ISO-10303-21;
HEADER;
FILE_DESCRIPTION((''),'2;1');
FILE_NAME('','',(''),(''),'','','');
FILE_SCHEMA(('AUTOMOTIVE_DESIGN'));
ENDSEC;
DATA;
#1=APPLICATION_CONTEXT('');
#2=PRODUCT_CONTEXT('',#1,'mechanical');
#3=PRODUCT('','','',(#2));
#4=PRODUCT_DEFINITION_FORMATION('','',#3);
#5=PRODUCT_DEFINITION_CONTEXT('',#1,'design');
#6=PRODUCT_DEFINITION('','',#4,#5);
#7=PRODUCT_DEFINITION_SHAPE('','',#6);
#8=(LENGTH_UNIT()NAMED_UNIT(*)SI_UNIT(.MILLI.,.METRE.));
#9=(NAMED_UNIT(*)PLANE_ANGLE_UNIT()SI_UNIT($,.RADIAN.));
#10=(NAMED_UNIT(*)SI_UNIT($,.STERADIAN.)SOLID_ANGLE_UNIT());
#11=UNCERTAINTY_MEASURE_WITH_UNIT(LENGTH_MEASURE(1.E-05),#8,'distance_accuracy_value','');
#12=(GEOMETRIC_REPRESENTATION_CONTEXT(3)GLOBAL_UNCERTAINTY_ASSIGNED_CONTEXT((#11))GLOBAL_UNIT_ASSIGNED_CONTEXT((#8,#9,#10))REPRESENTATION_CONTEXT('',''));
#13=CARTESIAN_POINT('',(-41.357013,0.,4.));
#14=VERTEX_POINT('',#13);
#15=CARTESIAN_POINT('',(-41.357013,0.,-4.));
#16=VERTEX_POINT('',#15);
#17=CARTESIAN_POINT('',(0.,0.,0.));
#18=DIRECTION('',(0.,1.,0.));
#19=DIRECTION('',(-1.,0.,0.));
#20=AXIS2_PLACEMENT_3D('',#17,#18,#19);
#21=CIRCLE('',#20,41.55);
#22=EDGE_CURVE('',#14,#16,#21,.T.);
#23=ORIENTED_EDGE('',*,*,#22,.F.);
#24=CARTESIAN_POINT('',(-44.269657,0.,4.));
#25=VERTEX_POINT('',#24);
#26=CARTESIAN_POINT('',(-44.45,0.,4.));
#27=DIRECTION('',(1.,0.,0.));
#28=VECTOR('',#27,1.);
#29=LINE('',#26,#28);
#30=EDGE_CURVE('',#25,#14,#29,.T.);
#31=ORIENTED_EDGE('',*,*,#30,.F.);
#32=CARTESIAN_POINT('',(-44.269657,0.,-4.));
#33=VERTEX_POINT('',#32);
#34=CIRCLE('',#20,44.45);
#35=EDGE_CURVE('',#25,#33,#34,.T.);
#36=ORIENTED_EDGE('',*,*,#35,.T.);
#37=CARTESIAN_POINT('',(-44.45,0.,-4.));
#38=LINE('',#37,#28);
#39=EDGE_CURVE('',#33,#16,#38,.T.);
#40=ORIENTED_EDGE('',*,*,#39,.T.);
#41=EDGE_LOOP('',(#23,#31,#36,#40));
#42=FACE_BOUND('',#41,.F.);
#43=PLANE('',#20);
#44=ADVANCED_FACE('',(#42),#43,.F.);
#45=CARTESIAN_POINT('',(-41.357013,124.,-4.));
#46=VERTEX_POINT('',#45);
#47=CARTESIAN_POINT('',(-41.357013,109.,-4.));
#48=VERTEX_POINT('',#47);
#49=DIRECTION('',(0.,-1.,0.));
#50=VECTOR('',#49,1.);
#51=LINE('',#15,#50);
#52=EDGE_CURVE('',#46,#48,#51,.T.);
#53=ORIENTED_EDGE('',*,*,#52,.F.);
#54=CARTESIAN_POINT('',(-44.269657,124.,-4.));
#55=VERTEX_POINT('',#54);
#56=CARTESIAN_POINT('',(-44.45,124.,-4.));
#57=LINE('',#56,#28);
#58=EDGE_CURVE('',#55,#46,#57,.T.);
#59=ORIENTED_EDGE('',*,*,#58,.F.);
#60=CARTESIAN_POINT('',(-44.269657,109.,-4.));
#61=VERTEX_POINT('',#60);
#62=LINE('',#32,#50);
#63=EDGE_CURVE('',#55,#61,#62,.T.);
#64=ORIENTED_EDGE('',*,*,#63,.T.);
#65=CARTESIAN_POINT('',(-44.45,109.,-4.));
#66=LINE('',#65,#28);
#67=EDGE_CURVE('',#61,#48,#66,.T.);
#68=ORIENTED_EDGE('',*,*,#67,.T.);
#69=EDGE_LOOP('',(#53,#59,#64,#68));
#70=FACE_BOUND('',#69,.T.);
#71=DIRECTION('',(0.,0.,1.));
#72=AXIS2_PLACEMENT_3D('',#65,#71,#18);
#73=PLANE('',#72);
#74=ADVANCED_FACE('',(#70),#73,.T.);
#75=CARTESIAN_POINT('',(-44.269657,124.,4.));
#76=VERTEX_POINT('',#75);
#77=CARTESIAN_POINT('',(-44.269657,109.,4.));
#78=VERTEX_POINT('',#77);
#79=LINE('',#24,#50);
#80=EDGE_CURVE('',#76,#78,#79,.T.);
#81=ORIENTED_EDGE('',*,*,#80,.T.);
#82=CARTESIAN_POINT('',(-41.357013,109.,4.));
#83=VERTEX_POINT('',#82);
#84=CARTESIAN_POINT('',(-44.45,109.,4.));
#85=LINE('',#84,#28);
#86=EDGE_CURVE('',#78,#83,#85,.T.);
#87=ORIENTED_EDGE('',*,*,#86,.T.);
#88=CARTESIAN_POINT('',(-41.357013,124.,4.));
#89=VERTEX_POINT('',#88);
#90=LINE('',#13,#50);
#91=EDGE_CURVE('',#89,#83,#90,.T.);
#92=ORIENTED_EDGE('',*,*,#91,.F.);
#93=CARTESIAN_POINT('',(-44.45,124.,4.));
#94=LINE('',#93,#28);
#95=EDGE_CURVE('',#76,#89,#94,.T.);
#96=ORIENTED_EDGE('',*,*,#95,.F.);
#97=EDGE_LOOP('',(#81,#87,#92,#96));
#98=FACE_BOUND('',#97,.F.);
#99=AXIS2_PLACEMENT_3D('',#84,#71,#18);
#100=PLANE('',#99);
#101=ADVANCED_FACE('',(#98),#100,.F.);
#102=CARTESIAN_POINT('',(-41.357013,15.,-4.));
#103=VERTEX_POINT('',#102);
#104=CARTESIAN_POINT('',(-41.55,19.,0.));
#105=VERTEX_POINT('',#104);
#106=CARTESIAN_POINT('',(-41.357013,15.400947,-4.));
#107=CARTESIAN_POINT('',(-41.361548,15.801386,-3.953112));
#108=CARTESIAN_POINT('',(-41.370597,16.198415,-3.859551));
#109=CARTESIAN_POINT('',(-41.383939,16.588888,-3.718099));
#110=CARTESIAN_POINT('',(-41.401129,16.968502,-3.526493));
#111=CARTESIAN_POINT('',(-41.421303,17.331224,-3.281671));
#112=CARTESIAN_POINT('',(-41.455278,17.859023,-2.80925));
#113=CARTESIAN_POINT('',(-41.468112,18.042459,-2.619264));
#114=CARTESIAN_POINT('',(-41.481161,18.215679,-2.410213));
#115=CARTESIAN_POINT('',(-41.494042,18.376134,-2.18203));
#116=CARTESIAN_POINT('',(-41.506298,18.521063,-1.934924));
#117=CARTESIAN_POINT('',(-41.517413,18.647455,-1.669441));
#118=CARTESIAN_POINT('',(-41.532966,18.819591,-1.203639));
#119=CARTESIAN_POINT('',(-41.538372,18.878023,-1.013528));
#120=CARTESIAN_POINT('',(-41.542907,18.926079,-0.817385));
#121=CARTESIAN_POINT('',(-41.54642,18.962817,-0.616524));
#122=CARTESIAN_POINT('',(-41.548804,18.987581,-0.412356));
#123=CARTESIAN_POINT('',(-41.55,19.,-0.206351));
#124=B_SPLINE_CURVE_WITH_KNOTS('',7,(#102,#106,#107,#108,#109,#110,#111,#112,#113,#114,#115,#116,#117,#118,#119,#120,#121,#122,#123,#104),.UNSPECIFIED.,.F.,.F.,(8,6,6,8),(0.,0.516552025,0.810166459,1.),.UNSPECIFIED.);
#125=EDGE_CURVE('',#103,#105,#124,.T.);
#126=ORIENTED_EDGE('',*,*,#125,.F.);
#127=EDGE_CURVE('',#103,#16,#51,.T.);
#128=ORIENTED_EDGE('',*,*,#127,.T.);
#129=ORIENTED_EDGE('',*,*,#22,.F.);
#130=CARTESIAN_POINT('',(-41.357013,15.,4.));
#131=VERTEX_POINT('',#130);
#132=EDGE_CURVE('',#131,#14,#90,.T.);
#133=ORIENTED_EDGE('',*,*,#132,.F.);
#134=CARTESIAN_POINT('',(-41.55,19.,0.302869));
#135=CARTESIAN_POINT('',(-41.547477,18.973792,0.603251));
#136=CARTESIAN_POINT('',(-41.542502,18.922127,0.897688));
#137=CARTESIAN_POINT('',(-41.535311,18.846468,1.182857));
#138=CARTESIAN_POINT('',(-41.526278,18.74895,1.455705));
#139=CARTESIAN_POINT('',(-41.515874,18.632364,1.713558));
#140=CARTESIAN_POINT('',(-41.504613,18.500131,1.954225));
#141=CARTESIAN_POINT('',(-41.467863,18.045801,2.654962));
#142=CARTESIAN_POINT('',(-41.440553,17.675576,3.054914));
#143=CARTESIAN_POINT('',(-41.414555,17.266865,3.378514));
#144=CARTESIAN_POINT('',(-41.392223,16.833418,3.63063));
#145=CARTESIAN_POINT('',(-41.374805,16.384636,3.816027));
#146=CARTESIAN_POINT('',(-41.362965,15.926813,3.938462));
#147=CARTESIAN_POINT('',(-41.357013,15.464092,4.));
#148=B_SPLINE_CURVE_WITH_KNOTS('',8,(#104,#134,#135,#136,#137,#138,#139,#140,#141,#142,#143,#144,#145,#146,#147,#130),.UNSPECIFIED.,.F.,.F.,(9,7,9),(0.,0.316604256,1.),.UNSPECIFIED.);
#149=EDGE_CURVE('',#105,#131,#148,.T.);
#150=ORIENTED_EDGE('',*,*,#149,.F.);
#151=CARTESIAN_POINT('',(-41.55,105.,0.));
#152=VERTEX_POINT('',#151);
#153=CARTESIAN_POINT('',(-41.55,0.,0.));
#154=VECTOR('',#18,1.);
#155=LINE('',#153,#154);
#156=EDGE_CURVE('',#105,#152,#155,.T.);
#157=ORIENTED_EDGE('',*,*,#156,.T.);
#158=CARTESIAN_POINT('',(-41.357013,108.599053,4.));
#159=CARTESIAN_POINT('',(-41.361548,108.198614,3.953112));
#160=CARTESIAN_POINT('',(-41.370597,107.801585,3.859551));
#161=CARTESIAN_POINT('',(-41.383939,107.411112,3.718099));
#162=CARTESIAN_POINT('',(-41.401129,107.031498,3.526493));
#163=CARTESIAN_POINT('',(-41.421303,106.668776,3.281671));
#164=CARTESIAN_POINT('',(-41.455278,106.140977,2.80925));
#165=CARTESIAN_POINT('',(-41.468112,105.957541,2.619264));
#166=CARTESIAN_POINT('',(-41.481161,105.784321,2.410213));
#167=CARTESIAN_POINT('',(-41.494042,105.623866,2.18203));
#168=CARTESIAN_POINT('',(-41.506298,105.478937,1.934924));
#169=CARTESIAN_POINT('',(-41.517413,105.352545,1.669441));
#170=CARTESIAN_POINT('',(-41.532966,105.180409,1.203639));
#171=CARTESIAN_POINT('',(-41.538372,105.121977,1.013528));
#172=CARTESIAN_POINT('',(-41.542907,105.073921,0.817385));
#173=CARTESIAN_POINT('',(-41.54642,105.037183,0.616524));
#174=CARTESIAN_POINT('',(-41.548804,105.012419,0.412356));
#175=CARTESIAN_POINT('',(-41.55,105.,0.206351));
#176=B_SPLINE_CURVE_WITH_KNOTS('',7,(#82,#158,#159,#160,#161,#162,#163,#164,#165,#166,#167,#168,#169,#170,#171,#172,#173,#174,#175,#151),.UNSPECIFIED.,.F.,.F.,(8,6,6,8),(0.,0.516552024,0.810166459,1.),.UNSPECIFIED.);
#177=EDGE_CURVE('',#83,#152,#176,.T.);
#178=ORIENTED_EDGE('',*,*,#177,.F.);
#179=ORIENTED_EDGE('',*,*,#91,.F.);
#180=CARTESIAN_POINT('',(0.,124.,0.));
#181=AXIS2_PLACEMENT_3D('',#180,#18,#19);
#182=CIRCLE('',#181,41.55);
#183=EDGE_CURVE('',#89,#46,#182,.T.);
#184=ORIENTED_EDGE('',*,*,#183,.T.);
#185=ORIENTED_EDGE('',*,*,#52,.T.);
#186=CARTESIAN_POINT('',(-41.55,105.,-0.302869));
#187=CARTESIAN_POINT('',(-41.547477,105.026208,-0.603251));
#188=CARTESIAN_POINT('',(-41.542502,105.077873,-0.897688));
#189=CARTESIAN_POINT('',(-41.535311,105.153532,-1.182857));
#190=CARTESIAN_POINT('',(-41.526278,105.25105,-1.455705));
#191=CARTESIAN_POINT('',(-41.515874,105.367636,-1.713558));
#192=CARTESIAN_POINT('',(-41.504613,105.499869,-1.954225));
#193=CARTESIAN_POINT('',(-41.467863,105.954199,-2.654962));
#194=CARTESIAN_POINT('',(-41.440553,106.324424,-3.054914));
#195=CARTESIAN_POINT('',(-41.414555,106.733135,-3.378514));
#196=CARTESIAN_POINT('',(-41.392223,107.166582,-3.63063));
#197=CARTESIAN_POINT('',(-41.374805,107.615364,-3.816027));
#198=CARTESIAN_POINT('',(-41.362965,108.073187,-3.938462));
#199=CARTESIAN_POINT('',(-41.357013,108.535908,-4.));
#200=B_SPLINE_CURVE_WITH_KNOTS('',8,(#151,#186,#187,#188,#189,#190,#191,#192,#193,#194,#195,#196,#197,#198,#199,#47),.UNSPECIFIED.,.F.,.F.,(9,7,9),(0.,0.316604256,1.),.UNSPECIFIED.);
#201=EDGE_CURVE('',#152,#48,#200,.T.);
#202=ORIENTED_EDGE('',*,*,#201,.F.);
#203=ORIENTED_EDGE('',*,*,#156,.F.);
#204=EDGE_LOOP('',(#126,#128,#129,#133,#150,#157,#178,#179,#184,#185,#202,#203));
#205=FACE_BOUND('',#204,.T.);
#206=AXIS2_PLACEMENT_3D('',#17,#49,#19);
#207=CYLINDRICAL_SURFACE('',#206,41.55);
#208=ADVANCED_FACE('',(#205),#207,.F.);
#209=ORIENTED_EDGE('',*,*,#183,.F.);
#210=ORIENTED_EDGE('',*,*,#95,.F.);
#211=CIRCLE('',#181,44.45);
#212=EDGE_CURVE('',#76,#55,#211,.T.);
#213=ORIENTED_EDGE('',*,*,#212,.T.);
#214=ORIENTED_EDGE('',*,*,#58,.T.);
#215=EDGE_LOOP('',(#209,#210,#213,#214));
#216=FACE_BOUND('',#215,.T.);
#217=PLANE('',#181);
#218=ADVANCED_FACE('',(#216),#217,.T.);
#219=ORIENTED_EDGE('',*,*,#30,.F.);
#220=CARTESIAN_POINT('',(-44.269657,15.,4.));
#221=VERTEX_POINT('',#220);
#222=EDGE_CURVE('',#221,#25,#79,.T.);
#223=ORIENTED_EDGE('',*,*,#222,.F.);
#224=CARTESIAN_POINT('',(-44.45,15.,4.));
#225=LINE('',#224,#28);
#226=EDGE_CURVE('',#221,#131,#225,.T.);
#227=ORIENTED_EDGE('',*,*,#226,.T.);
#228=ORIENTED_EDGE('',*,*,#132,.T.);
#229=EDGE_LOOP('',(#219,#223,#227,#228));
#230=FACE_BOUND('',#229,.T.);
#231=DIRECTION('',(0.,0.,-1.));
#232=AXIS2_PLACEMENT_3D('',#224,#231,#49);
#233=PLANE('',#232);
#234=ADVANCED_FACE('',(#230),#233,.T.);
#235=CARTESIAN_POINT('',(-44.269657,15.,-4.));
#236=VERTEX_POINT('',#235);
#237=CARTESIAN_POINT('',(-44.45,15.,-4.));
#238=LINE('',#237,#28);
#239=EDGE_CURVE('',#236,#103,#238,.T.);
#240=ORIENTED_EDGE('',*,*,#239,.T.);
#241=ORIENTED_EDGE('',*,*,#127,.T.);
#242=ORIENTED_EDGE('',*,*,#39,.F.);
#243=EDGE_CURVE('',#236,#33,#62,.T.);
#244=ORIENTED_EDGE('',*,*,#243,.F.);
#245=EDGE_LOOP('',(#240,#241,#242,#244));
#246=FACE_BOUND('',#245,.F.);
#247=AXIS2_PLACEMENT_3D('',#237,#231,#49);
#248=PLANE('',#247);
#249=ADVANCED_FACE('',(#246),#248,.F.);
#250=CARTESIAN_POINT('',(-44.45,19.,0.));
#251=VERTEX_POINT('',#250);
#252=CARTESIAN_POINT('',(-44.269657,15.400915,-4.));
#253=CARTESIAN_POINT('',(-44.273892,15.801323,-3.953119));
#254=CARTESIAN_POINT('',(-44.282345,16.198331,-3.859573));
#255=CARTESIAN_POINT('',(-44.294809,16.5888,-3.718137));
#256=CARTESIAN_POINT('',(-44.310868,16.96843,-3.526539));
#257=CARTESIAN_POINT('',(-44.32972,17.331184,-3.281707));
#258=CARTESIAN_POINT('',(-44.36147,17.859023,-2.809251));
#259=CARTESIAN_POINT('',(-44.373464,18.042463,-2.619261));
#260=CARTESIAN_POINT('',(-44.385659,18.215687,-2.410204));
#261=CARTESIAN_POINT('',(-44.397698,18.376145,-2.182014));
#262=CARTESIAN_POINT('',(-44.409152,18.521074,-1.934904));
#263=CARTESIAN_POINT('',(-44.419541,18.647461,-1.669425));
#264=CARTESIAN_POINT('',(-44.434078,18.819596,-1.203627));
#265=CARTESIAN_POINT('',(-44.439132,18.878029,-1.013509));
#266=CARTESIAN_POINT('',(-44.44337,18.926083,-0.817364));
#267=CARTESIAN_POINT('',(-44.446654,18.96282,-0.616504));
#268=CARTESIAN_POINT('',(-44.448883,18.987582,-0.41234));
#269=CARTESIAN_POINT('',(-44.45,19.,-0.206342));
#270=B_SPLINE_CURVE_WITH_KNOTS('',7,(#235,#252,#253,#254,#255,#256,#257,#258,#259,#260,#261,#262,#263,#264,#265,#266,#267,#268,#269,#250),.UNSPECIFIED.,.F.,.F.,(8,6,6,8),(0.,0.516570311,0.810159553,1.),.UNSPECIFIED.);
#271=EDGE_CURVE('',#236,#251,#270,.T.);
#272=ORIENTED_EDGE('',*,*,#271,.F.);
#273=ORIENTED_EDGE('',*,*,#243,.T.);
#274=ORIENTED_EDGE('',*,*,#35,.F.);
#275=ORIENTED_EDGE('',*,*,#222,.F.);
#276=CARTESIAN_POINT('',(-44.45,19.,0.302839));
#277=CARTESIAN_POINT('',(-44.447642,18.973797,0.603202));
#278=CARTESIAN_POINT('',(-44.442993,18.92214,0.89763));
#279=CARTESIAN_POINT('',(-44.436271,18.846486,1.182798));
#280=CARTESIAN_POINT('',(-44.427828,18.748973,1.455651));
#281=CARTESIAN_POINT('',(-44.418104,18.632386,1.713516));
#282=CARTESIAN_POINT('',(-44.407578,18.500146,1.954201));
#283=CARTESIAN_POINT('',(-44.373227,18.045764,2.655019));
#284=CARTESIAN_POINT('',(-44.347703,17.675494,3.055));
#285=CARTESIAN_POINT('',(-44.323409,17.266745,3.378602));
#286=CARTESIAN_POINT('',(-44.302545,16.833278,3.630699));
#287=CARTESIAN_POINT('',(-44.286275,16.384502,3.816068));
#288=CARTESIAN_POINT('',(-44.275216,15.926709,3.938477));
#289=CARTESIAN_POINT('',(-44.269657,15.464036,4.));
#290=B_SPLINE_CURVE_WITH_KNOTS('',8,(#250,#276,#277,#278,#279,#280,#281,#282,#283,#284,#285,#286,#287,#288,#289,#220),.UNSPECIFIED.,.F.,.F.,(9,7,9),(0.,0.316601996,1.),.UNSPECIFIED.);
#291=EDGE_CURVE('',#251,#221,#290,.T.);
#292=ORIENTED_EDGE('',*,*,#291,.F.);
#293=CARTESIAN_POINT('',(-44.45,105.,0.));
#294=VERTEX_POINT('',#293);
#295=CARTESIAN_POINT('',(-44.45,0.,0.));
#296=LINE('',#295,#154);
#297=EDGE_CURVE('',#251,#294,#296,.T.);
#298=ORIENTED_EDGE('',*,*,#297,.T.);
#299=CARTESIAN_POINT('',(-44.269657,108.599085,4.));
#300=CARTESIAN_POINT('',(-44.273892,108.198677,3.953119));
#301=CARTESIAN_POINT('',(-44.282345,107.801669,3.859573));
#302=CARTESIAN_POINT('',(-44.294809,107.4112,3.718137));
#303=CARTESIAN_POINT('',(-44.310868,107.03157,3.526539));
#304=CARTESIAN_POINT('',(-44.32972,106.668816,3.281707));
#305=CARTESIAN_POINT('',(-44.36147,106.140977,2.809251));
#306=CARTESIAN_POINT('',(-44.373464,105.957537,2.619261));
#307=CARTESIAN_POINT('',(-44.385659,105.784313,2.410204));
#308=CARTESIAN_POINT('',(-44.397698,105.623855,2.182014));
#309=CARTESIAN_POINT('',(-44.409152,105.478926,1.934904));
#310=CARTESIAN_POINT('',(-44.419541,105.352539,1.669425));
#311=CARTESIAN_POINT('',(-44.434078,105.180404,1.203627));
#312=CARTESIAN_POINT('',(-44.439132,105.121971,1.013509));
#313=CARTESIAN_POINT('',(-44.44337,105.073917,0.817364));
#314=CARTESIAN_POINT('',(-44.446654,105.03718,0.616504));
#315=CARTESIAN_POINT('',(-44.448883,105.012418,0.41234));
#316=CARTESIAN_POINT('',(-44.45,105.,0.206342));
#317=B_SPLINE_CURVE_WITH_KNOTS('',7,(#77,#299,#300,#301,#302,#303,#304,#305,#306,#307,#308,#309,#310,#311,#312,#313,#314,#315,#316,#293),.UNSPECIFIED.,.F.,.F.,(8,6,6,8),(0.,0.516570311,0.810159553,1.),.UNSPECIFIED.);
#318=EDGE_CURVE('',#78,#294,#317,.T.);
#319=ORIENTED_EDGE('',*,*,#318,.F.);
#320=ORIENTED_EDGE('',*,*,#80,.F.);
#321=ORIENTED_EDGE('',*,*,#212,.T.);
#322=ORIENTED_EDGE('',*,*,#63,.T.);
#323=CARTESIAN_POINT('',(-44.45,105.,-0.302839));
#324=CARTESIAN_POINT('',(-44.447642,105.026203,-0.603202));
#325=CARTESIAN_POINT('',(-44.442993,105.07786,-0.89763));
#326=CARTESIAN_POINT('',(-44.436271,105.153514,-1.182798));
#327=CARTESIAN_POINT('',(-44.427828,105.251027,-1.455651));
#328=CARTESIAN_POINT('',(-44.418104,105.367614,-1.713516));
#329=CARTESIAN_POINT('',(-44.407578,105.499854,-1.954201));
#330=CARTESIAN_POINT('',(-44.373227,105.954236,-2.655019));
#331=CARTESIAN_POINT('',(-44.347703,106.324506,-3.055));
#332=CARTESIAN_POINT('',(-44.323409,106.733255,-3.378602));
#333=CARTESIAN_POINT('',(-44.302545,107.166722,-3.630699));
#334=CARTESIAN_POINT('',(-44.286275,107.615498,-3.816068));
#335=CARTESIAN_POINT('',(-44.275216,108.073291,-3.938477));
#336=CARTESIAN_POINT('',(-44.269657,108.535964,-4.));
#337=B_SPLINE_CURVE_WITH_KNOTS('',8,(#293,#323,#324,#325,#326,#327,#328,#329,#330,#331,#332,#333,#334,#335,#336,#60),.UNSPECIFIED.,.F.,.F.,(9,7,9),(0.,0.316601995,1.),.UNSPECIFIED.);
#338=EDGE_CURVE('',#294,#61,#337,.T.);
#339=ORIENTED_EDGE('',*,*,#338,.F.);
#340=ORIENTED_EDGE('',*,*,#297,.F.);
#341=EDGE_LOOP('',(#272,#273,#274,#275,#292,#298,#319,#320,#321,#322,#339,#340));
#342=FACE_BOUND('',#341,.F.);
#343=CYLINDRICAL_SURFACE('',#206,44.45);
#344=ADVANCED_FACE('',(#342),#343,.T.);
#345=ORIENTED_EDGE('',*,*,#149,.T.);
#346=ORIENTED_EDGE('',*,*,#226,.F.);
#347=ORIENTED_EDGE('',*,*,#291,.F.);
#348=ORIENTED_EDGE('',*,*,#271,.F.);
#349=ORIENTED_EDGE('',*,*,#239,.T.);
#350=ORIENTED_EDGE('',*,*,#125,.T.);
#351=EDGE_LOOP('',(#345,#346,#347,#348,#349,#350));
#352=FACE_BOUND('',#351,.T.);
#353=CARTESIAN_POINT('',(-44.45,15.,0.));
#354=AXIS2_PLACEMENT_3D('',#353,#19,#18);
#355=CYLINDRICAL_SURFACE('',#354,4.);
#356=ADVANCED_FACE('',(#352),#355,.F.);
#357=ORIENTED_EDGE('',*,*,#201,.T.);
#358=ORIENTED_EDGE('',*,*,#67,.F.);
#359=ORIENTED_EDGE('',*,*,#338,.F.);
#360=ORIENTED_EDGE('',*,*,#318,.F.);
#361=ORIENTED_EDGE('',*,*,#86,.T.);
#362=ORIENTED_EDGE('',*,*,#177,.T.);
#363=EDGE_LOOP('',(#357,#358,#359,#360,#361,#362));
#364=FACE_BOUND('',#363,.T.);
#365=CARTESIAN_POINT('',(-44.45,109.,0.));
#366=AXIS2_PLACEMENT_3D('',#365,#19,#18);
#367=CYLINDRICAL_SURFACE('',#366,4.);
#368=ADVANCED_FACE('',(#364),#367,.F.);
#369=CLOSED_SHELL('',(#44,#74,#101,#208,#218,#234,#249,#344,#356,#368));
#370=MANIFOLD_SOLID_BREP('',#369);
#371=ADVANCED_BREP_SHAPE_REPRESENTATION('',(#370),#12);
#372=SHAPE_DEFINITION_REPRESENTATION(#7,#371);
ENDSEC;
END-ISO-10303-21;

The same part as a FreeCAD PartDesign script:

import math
import FreeCAD as App
import Part
import Sketcher

V = App.Vector
Q = App.Units.Quantity

doc = App.newDocument("Part")
body = doc.addObject("PartDesign::Body", "Body")

# Sketch on XZ plane
sketch1 = body.newObject("Sketcher::SketchObject", "Sketch")
sketch1.AttachmentSupport = (doc.getObject("XZ_Plane"), [""])
sketch1.MapMode = "FlatFace"
sketch1.addGeometry([
    Part.Circle(V(0, 0, 0), V(0, 0, 1), 44.45),
    Part.Circle(V(0, 0, 0), V(0, 0, 1), 41.55),
], False)
sketch1.addConstraint([
    Sketcher.Constraint("Coincident", 0, 3, -1, 1),
    Sketcher.Constraint("Coincident", 1, 3, -1, 1),
    Sketcher.Constraint("Diameter", 0, Q("88.9 mm")),
    Sketcher.Constraint("Diameter", 1, Q("83.1 mm")),
])
pad1 = body.newObject("PartDesign::Pad", "Pad")
pad1.Profile = sketch1
pad1.Length = 124
pad1.Reversed = True

# Sketch on YZ plane
sketch2 = body.newObject("Sketcher::SketchObject", "Sketch001")
sketch2.AttachmentSupport = (doc.getObject("YZ_Plane"), [""])
sketch2.MapMode = "FlatFace"
sketch2.AttachmentOffset = App.Placement(V(0, 0, -44.45), App.Rotation())
sketch2.addGeometry([
    Part.ArcOfCircle(Part.Circle(V(15, 0, 0), V(0, 0, 1), 4), math.radians(-90), math.radians(90)),  # 0
    Part.LineSegment(V(15, 4, 0), V(0, 4, 0)),  # 1
    Part.LineSegment(V(0, 4, 0), V(0, -4, 0)),  # 2
    Part.LineSegment(V(0, -4, 0), V(15, -4, 0)),  # 3
    Part.LineSegment(V(109, -4, 0), V(124, -4, 0)),  # 4
    Part.LineSegment(V(124, -4, 0), V(124, 4, 0)),  # 5
    Part.LineSegment(V(124, 4, 0), V(109, 4, 0)),  # 6
    Part.ArcOfCircle(Part.Circle(V(109, 0, 0), V(0, 0, 1), 4), math.radians(90), math.radians(270)),  # 7
], False)
sketch2.addConstraint([
    Sketcher.Constraint("Tangent", 0, 2, 1, 1),
    Sketcher.Constraint("Coincident", 1, 2, 2, 1),
    Sketcher.Constraint("Coincident", 2, 2, 3, 1),
    Sketcher.Constraint("Tangent", 3, 2, 0, 1),
    Sketcher.Constraint("Coincident", 4, 2, 5, 1),
    Sketcher.Constraint("Coincident", 5, 2, 6, 1),
    Sketcher.Constraint("Tangent", 6, 2, 7, 1),
    Sketcher.Constraint("Tangent", 7, 2, 4, 1),
    Sketcher.Constraint("Horizontal", 1),
    Sketcher.Constraint("Vertical", 2),
    Sketcher.Constraint("Horizontal", 3),
    Sketcher.Constraint("Horizontal", 4),
    Sketcher.Constraint("Vertical", 5),
    Sketcher.Constraint("Horizontal", 6),
    Sketcher.Constraint("Equal", 0, 7),
    Sketcher.Constraint("Symmetric", 1, 2, 2, 2, -1, 1),
    Sketcher.Constraint("PointOnObject", 7, 3, -1),
    Sketcher.Constraint("Equal", 3, 4),
    Sketcher.Constraint("Radius", 0, Q("4 mm")),
    Sketcher.Constraint("DistanceX", 1, 2, 1, 1, Q("15 mm")),
    Sketcher.Constraint("DistanceX", -1, 1, 7, 3, Q("109 mm")),
])
pocket1 = body.newObject("PartDesign::Pocket", "Pocket")
pocket1.Profile = sketch2
pocket1.Length = 50
pocket1.Reversed = True

doc.recompute()
